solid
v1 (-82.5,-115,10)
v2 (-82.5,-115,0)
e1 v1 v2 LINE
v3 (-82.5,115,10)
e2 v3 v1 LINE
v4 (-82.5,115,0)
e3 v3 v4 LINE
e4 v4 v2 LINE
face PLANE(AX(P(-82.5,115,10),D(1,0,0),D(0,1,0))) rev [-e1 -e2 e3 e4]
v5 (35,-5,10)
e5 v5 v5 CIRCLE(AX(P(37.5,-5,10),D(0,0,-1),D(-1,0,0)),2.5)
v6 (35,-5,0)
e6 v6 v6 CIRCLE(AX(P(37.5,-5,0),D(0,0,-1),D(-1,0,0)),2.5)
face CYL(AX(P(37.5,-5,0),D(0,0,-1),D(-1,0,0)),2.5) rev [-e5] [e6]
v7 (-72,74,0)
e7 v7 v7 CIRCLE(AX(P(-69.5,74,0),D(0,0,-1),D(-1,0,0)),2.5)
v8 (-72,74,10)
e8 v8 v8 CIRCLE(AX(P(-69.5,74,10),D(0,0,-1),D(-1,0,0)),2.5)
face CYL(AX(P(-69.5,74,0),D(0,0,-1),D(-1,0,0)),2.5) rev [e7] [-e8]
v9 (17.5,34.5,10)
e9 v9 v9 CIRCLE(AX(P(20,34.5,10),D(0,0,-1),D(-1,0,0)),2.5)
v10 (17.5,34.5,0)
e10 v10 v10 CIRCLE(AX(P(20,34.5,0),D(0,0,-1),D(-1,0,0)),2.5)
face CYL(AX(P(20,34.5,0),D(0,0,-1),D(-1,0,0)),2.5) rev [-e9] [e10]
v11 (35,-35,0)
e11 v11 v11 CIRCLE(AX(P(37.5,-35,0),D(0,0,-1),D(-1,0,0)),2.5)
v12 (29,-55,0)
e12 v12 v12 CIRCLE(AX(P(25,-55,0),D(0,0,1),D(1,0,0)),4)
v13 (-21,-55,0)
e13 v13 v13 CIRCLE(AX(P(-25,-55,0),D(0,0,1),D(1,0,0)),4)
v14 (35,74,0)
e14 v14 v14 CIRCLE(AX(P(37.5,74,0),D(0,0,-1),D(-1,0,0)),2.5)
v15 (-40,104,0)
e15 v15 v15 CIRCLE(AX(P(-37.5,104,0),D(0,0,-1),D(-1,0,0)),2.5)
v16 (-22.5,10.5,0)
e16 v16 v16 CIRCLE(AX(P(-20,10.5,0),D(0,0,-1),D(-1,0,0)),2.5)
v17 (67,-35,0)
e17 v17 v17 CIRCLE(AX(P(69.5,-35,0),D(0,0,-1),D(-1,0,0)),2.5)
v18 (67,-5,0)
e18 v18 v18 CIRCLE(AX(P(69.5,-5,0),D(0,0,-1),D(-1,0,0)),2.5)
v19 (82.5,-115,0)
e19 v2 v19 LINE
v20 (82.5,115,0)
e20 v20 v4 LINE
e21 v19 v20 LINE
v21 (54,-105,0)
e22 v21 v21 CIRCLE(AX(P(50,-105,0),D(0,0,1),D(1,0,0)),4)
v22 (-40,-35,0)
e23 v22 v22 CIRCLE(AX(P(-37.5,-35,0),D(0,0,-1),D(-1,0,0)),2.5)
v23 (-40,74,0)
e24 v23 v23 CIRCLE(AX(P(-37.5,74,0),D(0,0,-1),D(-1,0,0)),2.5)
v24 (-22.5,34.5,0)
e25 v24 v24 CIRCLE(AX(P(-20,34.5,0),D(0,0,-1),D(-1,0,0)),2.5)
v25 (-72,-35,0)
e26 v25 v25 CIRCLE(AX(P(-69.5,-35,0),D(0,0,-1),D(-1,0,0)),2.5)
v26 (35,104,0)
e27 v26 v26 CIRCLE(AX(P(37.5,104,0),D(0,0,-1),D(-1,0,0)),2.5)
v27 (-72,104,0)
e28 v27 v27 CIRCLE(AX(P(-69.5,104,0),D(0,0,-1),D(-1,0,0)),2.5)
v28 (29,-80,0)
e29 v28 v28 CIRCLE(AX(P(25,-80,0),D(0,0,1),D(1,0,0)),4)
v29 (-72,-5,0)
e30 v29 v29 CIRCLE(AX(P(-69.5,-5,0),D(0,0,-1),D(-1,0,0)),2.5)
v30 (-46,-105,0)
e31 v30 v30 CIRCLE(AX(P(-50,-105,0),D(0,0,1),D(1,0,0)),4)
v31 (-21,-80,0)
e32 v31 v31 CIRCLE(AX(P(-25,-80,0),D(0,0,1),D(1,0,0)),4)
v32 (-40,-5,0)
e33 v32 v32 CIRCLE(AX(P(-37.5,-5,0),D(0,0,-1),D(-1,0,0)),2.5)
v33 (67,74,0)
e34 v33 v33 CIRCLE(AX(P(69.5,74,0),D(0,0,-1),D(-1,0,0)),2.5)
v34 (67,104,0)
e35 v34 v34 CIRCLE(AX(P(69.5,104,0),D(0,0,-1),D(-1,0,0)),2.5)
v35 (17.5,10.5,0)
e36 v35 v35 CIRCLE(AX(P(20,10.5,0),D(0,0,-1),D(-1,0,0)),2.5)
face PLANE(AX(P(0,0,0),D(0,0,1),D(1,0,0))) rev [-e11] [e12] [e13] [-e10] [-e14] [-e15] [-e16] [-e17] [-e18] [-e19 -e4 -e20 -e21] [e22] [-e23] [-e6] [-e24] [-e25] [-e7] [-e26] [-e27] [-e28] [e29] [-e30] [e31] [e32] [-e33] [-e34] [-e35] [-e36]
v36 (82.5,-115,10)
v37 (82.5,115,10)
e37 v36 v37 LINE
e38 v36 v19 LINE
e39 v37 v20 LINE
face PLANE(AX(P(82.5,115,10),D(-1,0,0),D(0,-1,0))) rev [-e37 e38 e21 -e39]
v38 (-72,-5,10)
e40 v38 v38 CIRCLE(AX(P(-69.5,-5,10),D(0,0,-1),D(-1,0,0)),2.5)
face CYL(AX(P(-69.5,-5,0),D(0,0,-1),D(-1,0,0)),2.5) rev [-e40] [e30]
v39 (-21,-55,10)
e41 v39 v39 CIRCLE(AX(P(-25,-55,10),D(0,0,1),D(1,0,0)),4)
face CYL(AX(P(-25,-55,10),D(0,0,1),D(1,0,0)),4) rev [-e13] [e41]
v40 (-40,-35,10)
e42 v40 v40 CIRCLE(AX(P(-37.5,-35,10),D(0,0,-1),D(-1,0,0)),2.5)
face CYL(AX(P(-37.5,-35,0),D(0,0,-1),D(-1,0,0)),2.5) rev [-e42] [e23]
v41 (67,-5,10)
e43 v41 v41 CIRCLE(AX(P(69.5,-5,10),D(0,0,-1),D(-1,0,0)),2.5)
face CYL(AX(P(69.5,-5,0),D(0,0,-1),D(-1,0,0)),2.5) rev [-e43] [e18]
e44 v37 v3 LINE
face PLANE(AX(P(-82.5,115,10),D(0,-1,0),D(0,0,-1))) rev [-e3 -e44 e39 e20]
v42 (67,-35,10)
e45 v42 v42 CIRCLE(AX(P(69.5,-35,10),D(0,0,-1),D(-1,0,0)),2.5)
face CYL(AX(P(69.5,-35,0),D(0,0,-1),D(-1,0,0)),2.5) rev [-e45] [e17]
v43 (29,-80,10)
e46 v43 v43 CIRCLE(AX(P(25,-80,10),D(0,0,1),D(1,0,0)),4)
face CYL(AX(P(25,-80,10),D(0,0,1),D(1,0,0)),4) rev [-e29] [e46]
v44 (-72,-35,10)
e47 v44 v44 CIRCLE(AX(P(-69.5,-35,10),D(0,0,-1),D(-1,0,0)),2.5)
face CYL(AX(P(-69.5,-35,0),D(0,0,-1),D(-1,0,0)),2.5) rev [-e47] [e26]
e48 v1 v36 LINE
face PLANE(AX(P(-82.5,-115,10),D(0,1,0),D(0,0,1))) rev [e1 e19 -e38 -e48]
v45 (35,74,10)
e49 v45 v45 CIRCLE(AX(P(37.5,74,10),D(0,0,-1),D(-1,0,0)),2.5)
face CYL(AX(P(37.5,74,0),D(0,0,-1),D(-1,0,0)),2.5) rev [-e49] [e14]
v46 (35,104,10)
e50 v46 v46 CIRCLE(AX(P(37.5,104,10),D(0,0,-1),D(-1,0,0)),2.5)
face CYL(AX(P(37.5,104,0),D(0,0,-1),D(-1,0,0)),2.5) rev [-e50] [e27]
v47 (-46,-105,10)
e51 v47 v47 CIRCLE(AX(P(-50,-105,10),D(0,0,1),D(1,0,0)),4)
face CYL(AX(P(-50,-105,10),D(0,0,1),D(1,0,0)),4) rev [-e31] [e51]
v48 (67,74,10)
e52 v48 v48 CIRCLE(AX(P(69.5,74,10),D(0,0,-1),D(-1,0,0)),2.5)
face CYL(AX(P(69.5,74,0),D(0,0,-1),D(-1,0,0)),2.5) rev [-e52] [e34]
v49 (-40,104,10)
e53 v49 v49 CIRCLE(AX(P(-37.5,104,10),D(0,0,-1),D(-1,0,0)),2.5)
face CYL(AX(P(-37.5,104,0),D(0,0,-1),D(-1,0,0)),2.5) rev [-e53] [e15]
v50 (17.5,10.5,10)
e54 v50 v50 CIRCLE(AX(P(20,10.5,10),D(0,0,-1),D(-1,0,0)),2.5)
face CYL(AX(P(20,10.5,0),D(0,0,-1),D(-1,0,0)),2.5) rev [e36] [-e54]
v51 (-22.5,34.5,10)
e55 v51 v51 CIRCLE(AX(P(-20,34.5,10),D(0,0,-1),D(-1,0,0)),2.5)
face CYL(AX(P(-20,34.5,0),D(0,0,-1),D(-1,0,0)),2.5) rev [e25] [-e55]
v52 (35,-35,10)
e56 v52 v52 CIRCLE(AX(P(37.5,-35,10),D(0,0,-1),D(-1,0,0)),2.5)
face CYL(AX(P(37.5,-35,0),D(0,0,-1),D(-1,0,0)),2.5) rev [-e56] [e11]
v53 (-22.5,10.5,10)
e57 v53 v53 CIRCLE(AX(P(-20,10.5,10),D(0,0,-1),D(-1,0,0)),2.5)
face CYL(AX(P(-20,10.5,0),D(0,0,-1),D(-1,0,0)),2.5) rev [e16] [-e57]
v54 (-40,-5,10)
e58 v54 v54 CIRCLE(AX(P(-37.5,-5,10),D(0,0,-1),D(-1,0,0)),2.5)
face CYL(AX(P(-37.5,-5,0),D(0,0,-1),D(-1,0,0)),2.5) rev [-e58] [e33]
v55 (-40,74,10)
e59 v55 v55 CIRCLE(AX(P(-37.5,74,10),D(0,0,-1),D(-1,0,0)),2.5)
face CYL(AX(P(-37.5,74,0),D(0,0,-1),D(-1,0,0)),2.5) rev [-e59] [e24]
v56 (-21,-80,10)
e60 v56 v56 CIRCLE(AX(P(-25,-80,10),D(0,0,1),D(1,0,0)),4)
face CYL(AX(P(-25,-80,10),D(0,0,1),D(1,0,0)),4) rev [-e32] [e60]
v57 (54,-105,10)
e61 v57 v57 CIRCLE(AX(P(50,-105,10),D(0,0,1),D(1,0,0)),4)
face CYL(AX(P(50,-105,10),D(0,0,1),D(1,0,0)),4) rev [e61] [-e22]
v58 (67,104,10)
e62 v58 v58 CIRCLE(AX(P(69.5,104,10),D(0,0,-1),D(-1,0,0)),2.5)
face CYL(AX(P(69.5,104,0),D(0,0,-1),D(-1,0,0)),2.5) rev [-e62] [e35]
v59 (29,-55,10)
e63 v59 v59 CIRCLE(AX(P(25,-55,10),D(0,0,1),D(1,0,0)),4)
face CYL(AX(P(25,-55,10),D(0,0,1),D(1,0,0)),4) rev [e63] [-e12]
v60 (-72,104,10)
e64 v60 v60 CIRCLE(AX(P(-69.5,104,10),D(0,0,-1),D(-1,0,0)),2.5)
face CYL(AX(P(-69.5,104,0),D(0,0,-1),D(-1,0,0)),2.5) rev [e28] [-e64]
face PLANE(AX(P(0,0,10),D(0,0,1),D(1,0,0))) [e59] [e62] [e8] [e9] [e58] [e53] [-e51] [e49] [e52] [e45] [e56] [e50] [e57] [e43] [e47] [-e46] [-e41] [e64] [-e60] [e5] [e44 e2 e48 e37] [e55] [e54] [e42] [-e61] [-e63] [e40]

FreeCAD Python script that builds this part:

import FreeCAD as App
import Part
import Sketcher
Q = App.Units.Quantity


def add_polygon(sketch, points):
    """Adds a closed chain of lines whose ends are joined by coincident constraints."""
    first, n = sketch.GeometryCount, len(points)
    for a, b in zip(points, points[1:] + points[:1]):
        sketch.addGeometry(Part.LineSegment(App.Vector(*a, 0), App.Vector(*b, 0)), False)
    for i in range(n):
        sketch.addConstraint(Sketcher.Constraint("Coincident", first + i, 2, first + (i + 1) % n, 1))

doc = App.newDocument("Part")
body = doc.addObject("PartDesign::Body", "Body")

# Sketch on XY plane
sketch1 = body.newObject("Sketcher::SketchObject", "Sketch")
sketch1.AttachmentSupport = (doc.getObject("XY_Plane"), [""])
sketch1.MapMode = "FlatFace"
add_polygon(sketch1, [(-82.5, 115), (-82.5, -115), (82.5, -115), (82.5, 115)])  # lines 0-3
sketch1.addConstraint([
    Sketcher.Constraint("Vertical", 0),
    Sketcher.Constraint("Horizontal", 1),
    Sketcher.Constraint("Vertical", 2),
    Sketcher.Constraint("Horizontal", 3),
    Sketcher.Constraint("Symmetric", 0, 2, 2, 2, -1, 1),
    Sketcher.Constraint("DistanceX", 1, 1, 1, 2, Q("165 mm")),
    Sketcher.Constraint("DistanceY", 0, 2, 0, 1, Q("230 mm")),
])
pad1 = body.newObject("PartDesign::Pad", "Pad")
pad1.Profile = sketch1
pad1.Length = 10

# Sketch on XY plane
sketch2 = body.newObject("Sketcher::SketchObject", "Sketch001")
sketch2.AttachmentSupport = (doc.getObject("XY_Plane"), [""])
sketch2.MapMode = "FlatFace"
sketch2.addGeometry([
    Part.Circle(App.Vector(69.5, 104, 0), App.Vector(0, 0, 1), 2.5),  # 0
    Part.Circle(App.Vector(37.5, 104, 0), App.Vector(0, 0, 1), 2.5),  # 1
    Part.Circle(App.Vector(37.5, 74, 0), App.Vector(0, 0, 1), 2.5),  # 2
    Part.Circle(App.Vector(69.5, 74, 0), App.Vector(0, 0, 1), 2.5),  # 3
    Part.Circle(App.Vector(69.5, -5, 0), App.Vector(0, 0, 1), 2.5),  # 4
    Part.Circle(App.Vector(37.5, -5, 0), App.Vector(0, 0, 1), 2.5),  # 5
    Part.Circle(App.Vector(37.5, -35, 0), App.Vector(0, 0, 1), 2.5),  # 6
    Part.Circle(App.Vector(69.5, -35, 0), App.Vector(0, 0, 1), 2.5),  # 7
    Part.Circle(App.Vector(-37.5, 104, 0), App.Vector(0, 0, 1), 2.5),  # 8
    Part.Circle(App.Vector(-69.5, 104, 0), App.Vector(0, 0, 1), 2.5),  # 9
    Part.Circle(App.Vector(-69.5, 74, 0), App.Vector(0, 0, 1), 2.5),  # 10
    Part.Circle(App.Vector(-37.5, 74, 0), App.Vector(0, 0, 1), 2.5),  # 11
    Part.Circle(App.Vector(-37.5, -5, 0), App.Vector(0, 0, 1), 2.5),  # 12
    Part.Circle(App.Vector(-69.5, -5, 0), App.Vector(0, 0, 1), 2.5),  # 13
    Part.Circle(App.Vector(-69.5, -35, 0), App.Vector(0, 0, 1), 2.5),  # 14
    Part.Circle(App.Vector(-37.5, -35, 0), App.Vector(0, 0, 1), 2.5),  # 15
    Part.Circle(App.Vector(20, 34.5, 0), App.Vector(0, 0, 1), 2.5),  # 16
    Part.Circle(App.Vector(-20, 34.5, 0), App.Vector(0, 0, 1), 2.5),  # 17
    Part.Circle(App.Vector(-20, 10.5, 0), App.Vector(0, 0, 1), 2.5),  # 18
    Part.Circle(App.Vector(20, 10.5, 0), App.Vector(0, 0, 1), 2.5),  # 19
], False)
sketch2.addConstraint([
    Sketcher.Constraint("Equal", 0, 1),
    Sketcher.Constraint("Equal", 1, 2),
    Sketcher.Constraint("Equal", 2, 3),
    Sketcher.Constraint("Equal", 3, 4),
    Sketcher.Constraint("Equal", 4, 5),
    Sketcher.Constraint("Equal", 5, 6),
    Sketcher.Constraint("Equal", 6, 7),
    Sketcher.Constraint("Equal", 7, 8),
    Sketcher.Constraint("Equal", 8, 9),
    Sketcher.Constraint("Equal", 9, 10),
    Sketcher.Constraint("Equal", 10, 11),
    Sketcher.Constraint("Equal", 11, 12),
    Sketcher.Constraint("Equal", 12, 13),
    Sketcher.Constraint("Equal", 13, 14),
    Sketcher.Constraint("Equal", 14, 15),
    Sketcher.Constraint("Equal", 15, 16),
    Sketcher.Constraint("Equal", 16, 17),
    Sketcher.Constraint("Equal", 17, 18),
    Sketcher.Constraint("Equal", 18, 19),
    Sketcher.Constraint("Symmetric", 1, 3, 8, 3, -2),
    Sketcher.Constraint("Symmetric", 0, 3, 9, 3, -2),
    Sketcher.Constraint("Symmetric", 3, 3, 10, 3, -2),
    Sketcher.Constraint("Symmetric", 2, 3, 11, 3, -2),
    Sketcher.Constraint("Symmetric", 5, 3, 12, 3, -2),
    Sketcher.Constraint("Symmetric", 4, 3, 13, 3, -2),
    Sketcher.Constraint("Symmetric", 7, 3, 14, 3, -2),
    Sketcher.Constraint("Symmetric", 6, 3, 15, 3, -2),
    Sketcher.Constraint("Symmetric", 16, 3, 17, 3, -2),
    Sketcher.Constraint("Symmetric", 18, 3, 19, 3, -2),
    Sketcher.Constraint("Horizontal", 0, 3, 1, 3),
    Sketcher.Constraint("Horizontal", 2, 3, 3, 3),
    Sketcher.Constraint("Horizontal", 4, 3, 5, 3),
    Sketcher.Constraint("Horizontal", 6, 3, 7, 3),
    Sketcher.Constraint("Vertical", 1, 3, 2, 3),
    Sketcher.Constraint("Vertical", 0, 3, 3, 3),
    Sketcher.Constraint("Vertical", 3, 3, 4, 3),
    Sketcher.Constraint("Vertical", 2, 3, 5, 3),
    Sketcher.Constraint("Vertical", 5, 3, 6, 3),
    Sketcher.Constraint("Vertical", 4, 3, 7, 3),
    Sketcher.Constraint("Vertical", 17, 3, 18, 3),
    Sketcher.Constraint("Diameter", 0, Q("5 mm")),
    Sketcher.Constraint("DistanceY", -1, 1, 0, 3, Q("104 mm")),
    Sketcher.Constraint("DistanceY", -1, 1, 2, 3, Q("74 mm")),
    Sketcher.Constraint("DistanceY", 4, 3, -1, 1, Q("5 mm")),
    Sketcher.Constraint("DistanceY", 6, 3, -1, 1, Q("35 mm")),
    Sketcher.Constraint("DistanceX", -1, 1, 16, 3, Q("20 mm")),
    Sketcher.Constraint("DistanceX", 1, 3, 0, 3, Q("32 mm")),
    Sketcher.Constraint("DistanceX", 8, 3, 1, 3, Q("75 mm")),
    Sketcher.Constraint("DistanceY", 18, 3, 17, 3, Q("24 mm")),
    Sketcher.Constraint("DistanceY", -1, 1, 16, 3, Q("34.5 mm")),
])
doc.recompute()
hole = body.newObject("PartDesign::Hole", "Hole")
hole.Profile = sketch2
hole.ThreadType = "None"
hole.Diameter = 5
hole.DepthType = "ThroughAll"
hole.Reversed = True

# Sketch on XY plane
sketch3 = body.newObject("Sketcher::SketchObject", "Sketch002")
sketch3.AttachmentSupport = (doc.getObject("XY_Plane"), [""])
sketch3.MapMode = "FlatFace"
sketch3.AttachmentOffset = App.Placement(App.Vector(0, 0, 10), App.Rotation())
sketch3.addGeometry([
    Part.Circle(App.Vector(-25, -55, 0), App.Vector(0, 0, 1), 4),
    Part.Circle(App.Vector(25, -55, 0), App.Vector(0, 0, 1), 4),
    Part.Circle(App.Vector(25, -80, 0), App.Vector(0, 0, 1), 4),
    Part.Circle(App.Vector(-25, -80, 0), App.Vector(0, 0, 1), 4),
], False)
sketch3.addConstraint([
    Sketcher.Constraint("Equal", 0, 1),
    Sketcher.Constraint("Equal", 1, 2),
    Sketcher.Constraint("Equal", 2, 3),
    Sketcher.Constraint("Symmetric", 0, 3, 1, 3, -2),
    Sketcher.Constraint("Symmetric", 2, 3, 3, 3, -2),
    Sketcher.Constraint("Vertical", 1, 3, 2, 3),
    Sketcher.Constraint("Diameter", 0, Q("8 mm")),
    Sketcher.Constraint("DistanceX", 0, 3, -1, 1, Q("25 mm")),
    Sketcher.Constraint("DistanceY", 0, 3, -1, 1, Q("55 mm")),
    Sketcher.Constraint("DistanceY", 2, 3, -1, 1, Q("80 mm")),
])
doc.recompute()
hole2 = body.newObject("PartDesign::Hole", "Hole001")
hole2.Profile = sketch3
hole2.ThreadType = "None"
hole2.Diameter = 8
hole2.DepthType = "ThroughAll"

# Sketch on XY plane
sketch4 = body.newObject("Sketcher::SketchObject", "Sketch003")
sketch4.AttachmentSupport = (doc.getObject("XY_Plane"), [""])
sketch4.MapMode = "FlatFace"
sketch4.AttachmentOffset = App.Placement(App.Vector(0, 0, 10), App.Rotation())
sketch4.addGeometry([
    Part.Circle(App.Vector(50, -105, 0), App.Vector(0, 0, 1), 4),
    Part.Circle(App.Vector(-50, -105, 0), App.Vector(0, 0, 1), 4),
], False)
sketch4.addConstraint([
    Sketcher.Constraint("Equal", 0, 1),
    Sketcher.Constraint("Symmetric", 0, 3, 1, 3, -2),
    Sketcher.Constraint("Diameter", 0, Q("8 mm")),
    Sketcher.Constraint("DistanceX", -1, 1, 0, 3, Q("50 mm")),
    Sketcher.Constraint("DistanceY", 0, 3, -1, 1, Q("105 mm")),
])
doc.recompute()
hole3 = body.newObject("PartDesign::Hole", "Hole002")
hole3.Profile = sketch4
hole3.ThreadType = "None"
hole3.Diameter = 8
hole3.DepthType = "ThroughAll"

doc.recompute()
